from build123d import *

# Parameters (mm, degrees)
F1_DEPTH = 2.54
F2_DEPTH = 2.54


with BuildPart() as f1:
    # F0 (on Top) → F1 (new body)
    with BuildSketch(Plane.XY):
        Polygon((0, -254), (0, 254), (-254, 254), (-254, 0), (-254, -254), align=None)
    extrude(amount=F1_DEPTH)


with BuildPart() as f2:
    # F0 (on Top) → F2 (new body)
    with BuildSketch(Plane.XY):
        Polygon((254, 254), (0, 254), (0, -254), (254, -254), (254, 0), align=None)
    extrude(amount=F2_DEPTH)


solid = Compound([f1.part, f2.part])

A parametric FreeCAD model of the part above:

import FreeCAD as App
import Part
import Sketcher

V = App.Vector
Q = App.Units.Quantity


def add_polygon(sketch, points):
    """Adds a closed chain of lines whose ends are joined by coincident constraints."""
    first, n = sketch.GeometryCount, len(points)
    for a, b in zip(points, points[1:] + points[:1]):
        sketch.addGeometry(Part.LineSegment(App.Vector(*a, 0), App.Vector(*b, 0)), False)
    for i in range(n):
        sketch.addConstraint(Sketcher.Constraint("Coincident", first + i, 2, first + (i + 1) % n, 1))

doc = App.newDocument("Part")
body = doc.addObject("PartDesign::Body", "Body")

# Sketch on XY plane
sketch1 = body.newObject("Sketcher::SketchObject", "Sketch")
sketch1.AttachmentSupport = (doc.getObject("XY_Plane"), [""])
sketch1.MapMode = "FlatFace"
add_polygon(sketch1, [(0, -254), (0, 254), (-254, 254), (-254, -254)])  # lines 0-3
sketch1.addConstraint(Sketcher.Constraint("Vertical", 0))
sketch1.addConstraint(Sketcher.Constraint("Horizontal", 1))
sketch1.addConstraint(Sketcher.Constraint("Vertical", 2))
sketch1.addConstraint(Sketcher.Constraint("Horizontal", 3))
sketch1.addConstraint(Sketcher.Constraint("Symmetric", 0, 2, 3, 2, -1, 1))
sketch1.addConstraint(Sketcher.Constraint("DistanceX", 1, 2, 1, 1, Q("10 in")))
sketch1.addConstraint(Sketcher.Constraint("DistanceY", 0, 1, 0, 2, Q("20 in")))
pad1 = body.newObject("PartDesign::Pad", "Pad")
pad1.Profile = sketch1
pad1.Length = Q("0.1 in")
body2 = doc.addObject("PartDesign::Body", "Body001")

# Sketch on XY plane
sketch2 = body2.newObject("Sketcher::SketchObject", "Sketch001")
sketch2.AttachmentSupport = (doc.getObject("XY_Plane001"), [""])
sketch2.MapMode = "FlatFace"
add_polygon(sketch2, [(254, 254), (0, 254), (0, -254), (254, -254)])  # lines 0-3
sketch2.addConstraint(Sketcher.Constraint("Horizontal", 0))
sketch2.addConstraint(Sketcher.Constraint("Vertical", 1))
sketch2.addConstraint(Sketcher.Constraint("Horizontal", 2))
sketch2.addConstraint(Sketcher.Constraint("Vertical", 3))
sketch2.addConstraint(Sketcher.Constraint("Symmetric", 0, 2, 1, 2, -1, 1))
sketch2.addConstraint(Sketcher.Constraint("DistanceX", 0, 2, 0, 1, Q("10 in")))
sketch2.addConstraint(Sketcher.Constraint("DistanceY", 1, 2, 1, 1, Q("20 in")))
pad2 = body2.newObject("PartDesign::Pad", "Pad001")
pad2.Profile = sketch2
pad2.Length = Q("0.1 in")

doc.recompute()
